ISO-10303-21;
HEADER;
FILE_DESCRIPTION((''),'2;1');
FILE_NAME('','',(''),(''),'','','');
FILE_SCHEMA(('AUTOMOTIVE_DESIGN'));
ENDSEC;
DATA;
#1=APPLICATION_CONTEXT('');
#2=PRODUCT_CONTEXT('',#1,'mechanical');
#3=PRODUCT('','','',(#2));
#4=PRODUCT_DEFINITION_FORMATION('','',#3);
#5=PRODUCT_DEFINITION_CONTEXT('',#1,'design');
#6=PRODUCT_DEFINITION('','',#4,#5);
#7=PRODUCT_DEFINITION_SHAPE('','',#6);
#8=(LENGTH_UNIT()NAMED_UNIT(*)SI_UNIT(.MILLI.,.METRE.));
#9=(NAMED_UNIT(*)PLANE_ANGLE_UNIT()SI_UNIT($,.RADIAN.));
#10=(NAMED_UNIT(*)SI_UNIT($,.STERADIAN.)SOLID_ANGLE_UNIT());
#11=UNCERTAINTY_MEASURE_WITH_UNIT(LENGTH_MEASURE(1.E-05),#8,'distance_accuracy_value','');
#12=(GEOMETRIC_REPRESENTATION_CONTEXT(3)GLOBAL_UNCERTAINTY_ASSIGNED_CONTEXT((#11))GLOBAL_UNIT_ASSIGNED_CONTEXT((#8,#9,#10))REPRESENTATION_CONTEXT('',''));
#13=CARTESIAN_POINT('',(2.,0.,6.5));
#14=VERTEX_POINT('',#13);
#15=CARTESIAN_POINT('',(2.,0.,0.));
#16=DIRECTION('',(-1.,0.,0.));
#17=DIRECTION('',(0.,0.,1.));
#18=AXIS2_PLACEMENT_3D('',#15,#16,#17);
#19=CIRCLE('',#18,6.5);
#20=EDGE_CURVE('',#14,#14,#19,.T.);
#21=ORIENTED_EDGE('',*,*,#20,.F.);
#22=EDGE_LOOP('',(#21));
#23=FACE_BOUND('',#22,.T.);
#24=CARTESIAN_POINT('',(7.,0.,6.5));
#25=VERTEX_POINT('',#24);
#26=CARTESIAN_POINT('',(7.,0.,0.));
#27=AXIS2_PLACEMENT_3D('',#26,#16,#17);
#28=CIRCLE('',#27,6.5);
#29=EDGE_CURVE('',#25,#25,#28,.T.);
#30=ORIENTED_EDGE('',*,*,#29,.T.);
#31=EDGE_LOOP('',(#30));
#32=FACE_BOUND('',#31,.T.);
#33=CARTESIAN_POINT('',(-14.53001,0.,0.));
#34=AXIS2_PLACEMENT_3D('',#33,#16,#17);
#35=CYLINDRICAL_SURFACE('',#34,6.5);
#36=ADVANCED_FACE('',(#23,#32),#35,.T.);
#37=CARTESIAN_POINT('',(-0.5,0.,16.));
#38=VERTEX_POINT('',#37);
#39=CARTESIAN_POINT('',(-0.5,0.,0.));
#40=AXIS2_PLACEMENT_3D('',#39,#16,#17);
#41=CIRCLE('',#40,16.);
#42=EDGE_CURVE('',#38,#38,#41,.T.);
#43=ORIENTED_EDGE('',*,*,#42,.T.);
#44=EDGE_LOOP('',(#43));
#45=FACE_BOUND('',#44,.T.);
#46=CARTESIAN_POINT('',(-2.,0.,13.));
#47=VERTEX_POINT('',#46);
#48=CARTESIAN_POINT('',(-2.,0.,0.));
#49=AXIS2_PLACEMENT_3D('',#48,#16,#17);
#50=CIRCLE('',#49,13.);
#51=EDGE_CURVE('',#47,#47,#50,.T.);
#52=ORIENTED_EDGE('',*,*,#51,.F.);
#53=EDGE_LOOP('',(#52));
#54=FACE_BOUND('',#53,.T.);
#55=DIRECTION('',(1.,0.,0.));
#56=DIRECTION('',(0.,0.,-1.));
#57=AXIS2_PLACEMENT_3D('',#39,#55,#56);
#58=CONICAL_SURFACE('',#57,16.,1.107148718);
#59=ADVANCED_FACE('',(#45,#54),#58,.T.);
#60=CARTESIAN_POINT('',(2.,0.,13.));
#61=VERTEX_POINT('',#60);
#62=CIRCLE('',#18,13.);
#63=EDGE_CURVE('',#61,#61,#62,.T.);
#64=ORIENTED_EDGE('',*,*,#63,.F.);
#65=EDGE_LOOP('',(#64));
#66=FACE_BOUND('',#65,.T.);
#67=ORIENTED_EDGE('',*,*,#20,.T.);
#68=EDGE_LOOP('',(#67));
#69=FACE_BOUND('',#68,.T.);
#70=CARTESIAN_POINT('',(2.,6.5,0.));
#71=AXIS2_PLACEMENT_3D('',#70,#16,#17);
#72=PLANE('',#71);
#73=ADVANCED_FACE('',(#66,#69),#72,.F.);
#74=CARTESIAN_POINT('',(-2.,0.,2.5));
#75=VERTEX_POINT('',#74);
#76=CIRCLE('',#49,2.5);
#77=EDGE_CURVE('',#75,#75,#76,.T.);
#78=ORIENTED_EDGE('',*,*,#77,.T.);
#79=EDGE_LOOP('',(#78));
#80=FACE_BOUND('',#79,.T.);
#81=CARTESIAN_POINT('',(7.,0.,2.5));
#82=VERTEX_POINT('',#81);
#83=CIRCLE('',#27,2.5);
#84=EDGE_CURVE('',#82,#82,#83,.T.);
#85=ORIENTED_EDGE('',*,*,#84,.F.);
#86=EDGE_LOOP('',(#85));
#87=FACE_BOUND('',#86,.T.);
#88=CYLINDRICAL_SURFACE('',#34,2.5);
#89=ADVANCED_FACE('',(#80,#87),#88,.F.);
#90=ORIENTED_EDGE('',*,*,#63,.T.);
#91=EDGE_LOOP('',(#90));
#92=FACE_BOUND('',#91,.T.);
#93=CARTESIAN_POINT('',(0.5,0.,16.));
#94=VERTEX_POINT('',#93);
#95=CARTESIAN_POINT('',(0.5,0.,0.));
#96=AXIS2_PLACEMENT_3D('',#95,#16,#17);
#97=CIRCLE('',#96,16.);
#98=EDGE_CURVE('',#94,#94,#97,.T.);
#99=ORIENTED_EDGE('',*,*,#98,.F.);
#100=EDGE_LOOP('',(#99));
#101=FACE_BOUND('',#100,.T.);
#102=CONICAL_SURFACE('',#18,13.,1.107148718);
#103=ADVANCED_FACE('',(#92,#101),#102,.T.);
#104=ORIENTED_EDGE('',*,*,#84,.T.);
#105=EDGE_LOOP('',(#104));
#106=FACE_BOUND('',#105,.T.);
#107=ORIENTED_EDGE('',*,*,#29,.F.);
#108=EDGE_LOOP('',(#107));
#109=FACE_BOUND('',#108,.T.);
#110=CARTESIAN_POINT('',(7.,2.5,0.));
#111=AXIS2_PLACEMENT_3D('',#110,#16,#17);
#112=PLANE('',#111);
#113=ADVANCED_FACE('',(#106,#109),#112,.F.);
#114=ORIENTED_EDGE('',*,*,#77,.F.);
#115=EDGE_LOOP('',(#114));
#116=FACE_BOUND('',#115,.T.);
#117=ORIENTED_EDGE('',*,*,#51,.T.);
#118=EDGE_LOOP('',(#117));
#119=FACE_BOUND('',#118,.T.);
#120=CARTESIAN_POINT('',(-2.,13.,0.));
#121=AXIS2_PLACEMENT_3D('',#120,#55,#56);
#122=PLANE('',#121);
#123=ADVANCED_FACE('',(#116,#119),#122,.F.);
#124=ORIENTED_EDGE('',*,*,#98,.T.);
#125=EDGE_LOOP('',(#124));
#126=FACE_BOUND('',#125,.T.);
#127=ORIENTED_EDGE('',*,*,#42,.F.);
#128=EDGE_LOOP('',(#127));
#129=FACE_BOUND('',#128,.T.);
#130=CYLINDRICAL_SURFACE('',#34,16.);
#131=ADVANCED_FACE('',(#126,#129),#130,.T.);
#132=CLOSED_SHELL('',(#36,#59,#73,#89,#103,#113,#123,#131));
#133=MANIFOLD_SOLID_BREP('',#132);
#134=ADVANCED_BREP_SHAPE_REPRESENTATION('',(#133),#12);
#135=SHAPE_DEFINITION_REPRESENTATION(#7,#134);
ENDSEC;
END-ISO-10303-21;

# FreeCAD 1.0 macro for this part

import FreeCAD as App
import Part
import Sketcher

V = App.Vector

doc = App.newDocument("Part")
body = doc.addObject("PartDesign::Body", "Body")

# Sketch on XY plane
sketch1 = body.newObject("Sketcher::SketchObject", "Sketch")
sketch1.AttachmentSupport = (doc.getObject("XY_Plane"), [""])
sketch1.MapMode = "FlatFace"
sketch1.addGeometry([
    Part.LineSegment(V(-2, 2.5, 0), V(7, 2.5, 0)),  # 0
    Part.LineSegment(V(7, 2.5, 0), V(7, 6.5, 0)),  # 1
    Part.LineSegment(V(7, 6.5, 0), V(2, 6.5, 0)),  # 2
    Part.LineSegment(V(2, 6.5, 0), V(2, 13, 0)),  # 3
    Part.LineSegment(V(2, 13, 0), V(0.5, 16, 0)),  # 4
    Part.LineSegment(V(0.5, 16, 0), V(-0.5, 16, 0)),  # 5
    Part.LineSegment(V(-0.5, 16, 0), V(-2, 13, 0)),  # 6
    Part.LineSegment(V(-2, 13, 0), V(-2, 2.5, 0)),  # 7
], False)
sketch1.addConstraint([
    Sketcher.Constraint("Coincident", 0, 2, 1, 1),
    Sketcher.Constraint("Coincident", 1, 2, 2, 1),
    Sketcher.Constraint("Coincident", 2, 2, 3, 1),
    Sketcher.Constraint("Coincident", 3, 2, 4, 1),
    Sketcher.Constraint("Coincident", 4, 2, 5, 1),
    Sketcher.Constraint("Coincident", 5, 2, 6, 1),
    Sketcher.Constraint("Coincident", 6, 2, 7, 1),
    Sketcher.Constraint("Coincident", 7, 2, 0, 1),
    Sketcher.Constraint("Horizontal", 0),
    Sketcher.Constraint("Vertical", 1),
    Sketcher.Constraint("Horizontal", 2),
    Sketcher.Constraint("Vertical", 3),
    Sketcher.Constraint("Horizontal", 5),
    Sketcher.Constraint("Vertical", 7),
    Sketcher.Constraint("Symmetric", 3, 2, 6, 2, -2),
    Sketcher.Constraint("Equal", 4, 6),
    Sketcher.Constraint("DistanceX", 0, 1, 0, 2, 9.0),
    Sketcher.Constraint("DistanceX", 2, 2, 2, 1, 5.0),
    Sketcher.Constraint("DistanceX", 5, 2, 5, 1, 1.0),
    Sketcher.Constraint("DistanceY", 1, 1, 1, 2, 4.0),
    Sketcher.Constraint("DistanceY", 3, 1, 3, 2, 6.5),
    Sketcher.Constraint("DistanceY", -1, 1, 3, 2, 13.0),
    Sketcher.Constraint("DistanceY", -1, 1, 4, 2, 16.0),
])
revolution = body.newObject("PartDesign::Revolution", "Revolution")
revolution.Profile = sketch1
revolution.ReferenceAxis = (sketch1, ["H_Axis"])
revolution.Angle = 360

doc.recompute()
